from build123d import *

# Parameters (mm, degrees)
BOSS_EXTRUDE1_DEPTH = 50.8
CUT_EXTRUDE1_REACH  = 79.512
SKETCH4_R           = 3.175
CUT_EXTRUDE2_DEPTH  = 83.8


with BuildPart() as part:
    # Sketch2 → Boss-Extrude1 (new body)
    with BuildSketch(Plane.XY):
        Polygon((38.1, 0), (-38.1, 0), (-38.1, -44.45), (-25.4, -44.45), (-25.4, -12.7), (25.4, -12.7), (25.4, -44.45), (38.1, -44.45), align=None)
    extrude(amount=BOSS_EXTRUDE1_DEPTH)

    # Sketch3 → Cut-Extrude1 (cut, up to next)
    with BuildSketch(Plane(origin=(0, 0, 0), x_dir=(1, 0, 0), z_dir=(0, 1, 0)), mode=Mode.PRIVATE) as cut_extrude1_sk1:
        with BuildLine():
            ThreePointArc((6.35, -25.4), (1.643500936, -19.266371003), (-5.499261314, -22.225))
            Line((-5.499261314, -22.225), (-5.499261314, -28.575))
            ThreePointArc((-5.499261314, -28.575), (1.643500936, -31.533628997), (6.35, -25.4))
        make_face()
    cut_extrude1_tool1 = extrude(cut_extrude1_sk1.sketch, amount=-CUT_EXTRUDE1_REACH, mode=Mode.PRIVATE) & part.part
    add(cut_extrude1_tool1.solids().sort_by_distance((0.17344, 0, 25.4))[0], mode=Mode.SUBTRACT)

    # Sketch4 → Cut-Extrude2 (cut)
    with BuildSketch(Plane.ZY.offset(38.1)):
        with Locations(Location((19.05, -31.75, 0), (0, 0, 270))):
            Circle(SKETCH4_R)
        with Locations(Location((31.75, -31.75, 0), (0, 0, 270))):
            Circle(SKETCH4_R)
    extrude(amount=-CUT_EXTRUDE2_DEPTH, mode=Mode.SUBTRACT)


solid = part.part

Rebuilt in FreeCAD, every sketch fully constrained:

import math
import FreeCAD as App
import Part
import Sketcher

V = App.Vector
Q = App.Units.Quantity

doc = App.newDocument("Part")
body = doc.addObject("PartDesign::Body", "Body")

# Sketch on XY plane
sketch1 = body.newObject("Sketcher::SketchObject", "Sketch")
sketch1.AttachmentSupport = (doc.getObject("XY_Plane"), [""])
sketch1.MapMode = "FlatFace"
sketch1.addGeometry(Part.LineSegment(V(38.1, 0, 0), V(-38.1, 0, 0)), False)
sketch1.addGeometry(Part.LineSegment(V(-38.1, 0, 0), V(-38.1, -44.45, 0)), False)
sketch1.addGeometry(Part.LineSegment(V(-38.1, -44.45, 0), V(-25.4, -44.45, 0)), False)
sketch1.addGeometry(Part.LineSegment(V(-25.4, -44.45, 0), V(-25.4, -12.7, 0)), False)
sketch1.addGeometry(Part.LineSegment(V(-25.4, -12.7, 0), V(25.4, -12.7, 0)), False)
sketch1.addGeometry(Part.LineSegment(V(25.4, -12.7, 0), V(25.4, -44.45, 0)), False)
sketch1.addGeometry(Part.LineSegment(V(25.4, -44.45, 0), V(38.1, -44.45, 0)), False)
sketch1.addGeometry(Part.LineSegment(V(38.1, -44.45, 0), V(38.1, 0, 0)), False)
sketch1.addConstraint(Sketcher.Constraint("Coincident", 0, 2, 1, 1))
sketch1.addConstraint(Sketcher.Constraint("Coincident", 1, 2, 2, 1))
sketch1.addConstraint(Sketcher.Constraint("Coincident", 2, 2, 3, 1))
sketch1.addConstraint(Sketcher.Constraint("Coincident", 3, 2, 4, 1))
sketch1.addConstraint(Sketcher.Constraint("Coincident", 4, 2, 5, 1))
sketch1.addConstraint(Sketcher.Constraint("Coincident", 5, 2, 6, 1))
sketch1.addConstraint(Sketcher.Constraint("Coincident", 6, 2, 7, 1))
sketch1.addConstraint(Sketcher.Constraint("Coincident", 7, 2, 0, 1))
sketch1.addConstraint(Sketcher.Constraint("Horizontal", 0))
sketch1.addConstraint(Sketcher.Constraint("Vertical", 1))
sketch1.addConstraint(Sketcher.Constraint("Horizontal", 2))
sketch1.addConstraint(Sketcher.Constraint("Vertical", 3))
sketch1.addConstraint(Sketcher.Constraint("Horizontal", 4))
sketch1.addConstraint(Sketcher.Constraint("Vertical", 5))
sketch1.addConstraint(Sketcher.Constraint("Horizontal", 6))
sketch1.addConstraint(Sketcher.Constraint("Vertical", 7))
sketch1.addConstraint(Sketcher.Constraint("Symmetric", 0, 2, 7, 2, -1, 1))
sketch1.addConstraint(Sketcher.Constraint("Symmetric", 2, 2, 5, 2, -2))
sketch1.addConstraint(Sketcher.Constraint("DistanceX", 0, 2, 0, 1, Q("3 in")))
sketch1.addConstraint(Sketcher.Constraint("DistanceX", 4, 1, 4, 2, Q("2 in")))
sketch1.addConstraint(Sketcher.Constraint("DistanceY", 1, 2, 1, 1, Q("1.75 in")))
sketch1.addConstraint(Sketcher.Constraint("DistanceY", 3, 1, 3, 2, Q("1.25 in")))
pad1 = body.newObject("PartDesign::Pad", "Pad")
pad1.Profile = sketch1
pad1.Length = Q("2 in")

# Sketch on XZ plane
sketch2 = body.newObject("Sketcher::SketchObject", "Sketch001")
sketch2.AttachmentSupport = (doc.getObject("XZ_Plane"), [""])
sketch2.MapMode = "FlatFace"
sketch2.addGeometry(Part.ArcOfCircle(Part.Circle(V(0, 25.4, 0), V(0, 0, 1), 6.35), math.radians(-150), math.radians(0)), False)
sketch2.addGeometry(Part.LineSegment(V(-5.499261, 22.225, 0), V(-5.499261, 28.575, 0)), False)
sketch2.addGeometry(Part.ArcOfCircle(Part.Circle(V(0, 25.4, 0), V(0, 0, 1), 6.35), math.radians(0), math.radians(150)), False)
sketch2.addConstraint(Sketcher.Constraint("Coincident", 0, 1, 1, 1))
sketch2.addConstraint(Sketcher.Constraint("Coincident", 1, 2, 2, 2))
sketch2.addConstraint(Sketcher.Constraint("Tangent", 2, 1, 0, 2))
sketch2.addConstraint(Sketcher.Constraint("Vertical", 1))
sketch2.addConstraint(Sketcher.Constraint("Equal", 0, 2))
sketch2.addConstraint(Sketcher.Constraint("PointOnObject", 0, 3, -2))
sketch2.addConstraint(Sketcher.Constraint("Horizontal", 0, 3, 2, 1))
sketch2.addConstraint(Sketcher.Constraint("Radius", 0, Q("0.25 in")))
sketch2.addConstraint(Sketcher.Constraint("DistanceY", -1, 1, 0, 3, Q("1 in")))
sketch2.addConstraint(Sketcher.Constraint("DistanceY", 1, 1, 1, 2, Q("0.25 in")))
pocket1 = body.newObject("PartDesign::Pocket", "Pocket")
pocket1.Profile = sketch2
pocket1.Type = "UpToFirst"
pocket1.Reversed = True

# Sketch on YZ plane
sketch3 = body.newObject("Sketcher::SketchObject", "Sketch002")
sketch3.AttachmentSupport = (doc.getObject("YZ_Plane"), [""])
sketch3.MapMode = "FlatFace"
sketch3.AttachmentOffset = App.Placement(V(0, 0, -1.5 * 25.4), App.Rotation())
sketch3.addGeometry(Part.Circle(V(-31.75, 19.05, 0), V(0, 0, 1), 3.175), False)
sketch3.addGeometry(Part.Circle(V(-31.75, 31.75, 0), V(0, 0, 1), 3.175), False)
sketch3.addConstraint(Sketcher.Constraint("Equal", 0, 1))
sketch3.addConstraint(Sketcher.Constraint("Vertical", 0, 3, 1, 3))
sketch3.addConstraint(Sketcher.Constraint("Diameter", 0, Q("0.25 in")))
sketch3.addConstraint(Sketcher.Constraint("DistanceY", 0, 3, 1, 3, Q("0.5 in")))
sketch3.addConstraint(Sketcher.Constraint("DistanceX", 0, 3, -1, 1, Q("1.25 in")))
sketch3.addConstraint(Sketcher.Constraint("DistanceY", -1, 1, 0, 3, Q("0.75 in")))
pocket2 = body.newObject("PartDesign::Pocket", "Pocket001")
pocket2.Profile = sketch3
pocket2.Length = 83.8
pocket2.Reversed = True

doc.recompute()
